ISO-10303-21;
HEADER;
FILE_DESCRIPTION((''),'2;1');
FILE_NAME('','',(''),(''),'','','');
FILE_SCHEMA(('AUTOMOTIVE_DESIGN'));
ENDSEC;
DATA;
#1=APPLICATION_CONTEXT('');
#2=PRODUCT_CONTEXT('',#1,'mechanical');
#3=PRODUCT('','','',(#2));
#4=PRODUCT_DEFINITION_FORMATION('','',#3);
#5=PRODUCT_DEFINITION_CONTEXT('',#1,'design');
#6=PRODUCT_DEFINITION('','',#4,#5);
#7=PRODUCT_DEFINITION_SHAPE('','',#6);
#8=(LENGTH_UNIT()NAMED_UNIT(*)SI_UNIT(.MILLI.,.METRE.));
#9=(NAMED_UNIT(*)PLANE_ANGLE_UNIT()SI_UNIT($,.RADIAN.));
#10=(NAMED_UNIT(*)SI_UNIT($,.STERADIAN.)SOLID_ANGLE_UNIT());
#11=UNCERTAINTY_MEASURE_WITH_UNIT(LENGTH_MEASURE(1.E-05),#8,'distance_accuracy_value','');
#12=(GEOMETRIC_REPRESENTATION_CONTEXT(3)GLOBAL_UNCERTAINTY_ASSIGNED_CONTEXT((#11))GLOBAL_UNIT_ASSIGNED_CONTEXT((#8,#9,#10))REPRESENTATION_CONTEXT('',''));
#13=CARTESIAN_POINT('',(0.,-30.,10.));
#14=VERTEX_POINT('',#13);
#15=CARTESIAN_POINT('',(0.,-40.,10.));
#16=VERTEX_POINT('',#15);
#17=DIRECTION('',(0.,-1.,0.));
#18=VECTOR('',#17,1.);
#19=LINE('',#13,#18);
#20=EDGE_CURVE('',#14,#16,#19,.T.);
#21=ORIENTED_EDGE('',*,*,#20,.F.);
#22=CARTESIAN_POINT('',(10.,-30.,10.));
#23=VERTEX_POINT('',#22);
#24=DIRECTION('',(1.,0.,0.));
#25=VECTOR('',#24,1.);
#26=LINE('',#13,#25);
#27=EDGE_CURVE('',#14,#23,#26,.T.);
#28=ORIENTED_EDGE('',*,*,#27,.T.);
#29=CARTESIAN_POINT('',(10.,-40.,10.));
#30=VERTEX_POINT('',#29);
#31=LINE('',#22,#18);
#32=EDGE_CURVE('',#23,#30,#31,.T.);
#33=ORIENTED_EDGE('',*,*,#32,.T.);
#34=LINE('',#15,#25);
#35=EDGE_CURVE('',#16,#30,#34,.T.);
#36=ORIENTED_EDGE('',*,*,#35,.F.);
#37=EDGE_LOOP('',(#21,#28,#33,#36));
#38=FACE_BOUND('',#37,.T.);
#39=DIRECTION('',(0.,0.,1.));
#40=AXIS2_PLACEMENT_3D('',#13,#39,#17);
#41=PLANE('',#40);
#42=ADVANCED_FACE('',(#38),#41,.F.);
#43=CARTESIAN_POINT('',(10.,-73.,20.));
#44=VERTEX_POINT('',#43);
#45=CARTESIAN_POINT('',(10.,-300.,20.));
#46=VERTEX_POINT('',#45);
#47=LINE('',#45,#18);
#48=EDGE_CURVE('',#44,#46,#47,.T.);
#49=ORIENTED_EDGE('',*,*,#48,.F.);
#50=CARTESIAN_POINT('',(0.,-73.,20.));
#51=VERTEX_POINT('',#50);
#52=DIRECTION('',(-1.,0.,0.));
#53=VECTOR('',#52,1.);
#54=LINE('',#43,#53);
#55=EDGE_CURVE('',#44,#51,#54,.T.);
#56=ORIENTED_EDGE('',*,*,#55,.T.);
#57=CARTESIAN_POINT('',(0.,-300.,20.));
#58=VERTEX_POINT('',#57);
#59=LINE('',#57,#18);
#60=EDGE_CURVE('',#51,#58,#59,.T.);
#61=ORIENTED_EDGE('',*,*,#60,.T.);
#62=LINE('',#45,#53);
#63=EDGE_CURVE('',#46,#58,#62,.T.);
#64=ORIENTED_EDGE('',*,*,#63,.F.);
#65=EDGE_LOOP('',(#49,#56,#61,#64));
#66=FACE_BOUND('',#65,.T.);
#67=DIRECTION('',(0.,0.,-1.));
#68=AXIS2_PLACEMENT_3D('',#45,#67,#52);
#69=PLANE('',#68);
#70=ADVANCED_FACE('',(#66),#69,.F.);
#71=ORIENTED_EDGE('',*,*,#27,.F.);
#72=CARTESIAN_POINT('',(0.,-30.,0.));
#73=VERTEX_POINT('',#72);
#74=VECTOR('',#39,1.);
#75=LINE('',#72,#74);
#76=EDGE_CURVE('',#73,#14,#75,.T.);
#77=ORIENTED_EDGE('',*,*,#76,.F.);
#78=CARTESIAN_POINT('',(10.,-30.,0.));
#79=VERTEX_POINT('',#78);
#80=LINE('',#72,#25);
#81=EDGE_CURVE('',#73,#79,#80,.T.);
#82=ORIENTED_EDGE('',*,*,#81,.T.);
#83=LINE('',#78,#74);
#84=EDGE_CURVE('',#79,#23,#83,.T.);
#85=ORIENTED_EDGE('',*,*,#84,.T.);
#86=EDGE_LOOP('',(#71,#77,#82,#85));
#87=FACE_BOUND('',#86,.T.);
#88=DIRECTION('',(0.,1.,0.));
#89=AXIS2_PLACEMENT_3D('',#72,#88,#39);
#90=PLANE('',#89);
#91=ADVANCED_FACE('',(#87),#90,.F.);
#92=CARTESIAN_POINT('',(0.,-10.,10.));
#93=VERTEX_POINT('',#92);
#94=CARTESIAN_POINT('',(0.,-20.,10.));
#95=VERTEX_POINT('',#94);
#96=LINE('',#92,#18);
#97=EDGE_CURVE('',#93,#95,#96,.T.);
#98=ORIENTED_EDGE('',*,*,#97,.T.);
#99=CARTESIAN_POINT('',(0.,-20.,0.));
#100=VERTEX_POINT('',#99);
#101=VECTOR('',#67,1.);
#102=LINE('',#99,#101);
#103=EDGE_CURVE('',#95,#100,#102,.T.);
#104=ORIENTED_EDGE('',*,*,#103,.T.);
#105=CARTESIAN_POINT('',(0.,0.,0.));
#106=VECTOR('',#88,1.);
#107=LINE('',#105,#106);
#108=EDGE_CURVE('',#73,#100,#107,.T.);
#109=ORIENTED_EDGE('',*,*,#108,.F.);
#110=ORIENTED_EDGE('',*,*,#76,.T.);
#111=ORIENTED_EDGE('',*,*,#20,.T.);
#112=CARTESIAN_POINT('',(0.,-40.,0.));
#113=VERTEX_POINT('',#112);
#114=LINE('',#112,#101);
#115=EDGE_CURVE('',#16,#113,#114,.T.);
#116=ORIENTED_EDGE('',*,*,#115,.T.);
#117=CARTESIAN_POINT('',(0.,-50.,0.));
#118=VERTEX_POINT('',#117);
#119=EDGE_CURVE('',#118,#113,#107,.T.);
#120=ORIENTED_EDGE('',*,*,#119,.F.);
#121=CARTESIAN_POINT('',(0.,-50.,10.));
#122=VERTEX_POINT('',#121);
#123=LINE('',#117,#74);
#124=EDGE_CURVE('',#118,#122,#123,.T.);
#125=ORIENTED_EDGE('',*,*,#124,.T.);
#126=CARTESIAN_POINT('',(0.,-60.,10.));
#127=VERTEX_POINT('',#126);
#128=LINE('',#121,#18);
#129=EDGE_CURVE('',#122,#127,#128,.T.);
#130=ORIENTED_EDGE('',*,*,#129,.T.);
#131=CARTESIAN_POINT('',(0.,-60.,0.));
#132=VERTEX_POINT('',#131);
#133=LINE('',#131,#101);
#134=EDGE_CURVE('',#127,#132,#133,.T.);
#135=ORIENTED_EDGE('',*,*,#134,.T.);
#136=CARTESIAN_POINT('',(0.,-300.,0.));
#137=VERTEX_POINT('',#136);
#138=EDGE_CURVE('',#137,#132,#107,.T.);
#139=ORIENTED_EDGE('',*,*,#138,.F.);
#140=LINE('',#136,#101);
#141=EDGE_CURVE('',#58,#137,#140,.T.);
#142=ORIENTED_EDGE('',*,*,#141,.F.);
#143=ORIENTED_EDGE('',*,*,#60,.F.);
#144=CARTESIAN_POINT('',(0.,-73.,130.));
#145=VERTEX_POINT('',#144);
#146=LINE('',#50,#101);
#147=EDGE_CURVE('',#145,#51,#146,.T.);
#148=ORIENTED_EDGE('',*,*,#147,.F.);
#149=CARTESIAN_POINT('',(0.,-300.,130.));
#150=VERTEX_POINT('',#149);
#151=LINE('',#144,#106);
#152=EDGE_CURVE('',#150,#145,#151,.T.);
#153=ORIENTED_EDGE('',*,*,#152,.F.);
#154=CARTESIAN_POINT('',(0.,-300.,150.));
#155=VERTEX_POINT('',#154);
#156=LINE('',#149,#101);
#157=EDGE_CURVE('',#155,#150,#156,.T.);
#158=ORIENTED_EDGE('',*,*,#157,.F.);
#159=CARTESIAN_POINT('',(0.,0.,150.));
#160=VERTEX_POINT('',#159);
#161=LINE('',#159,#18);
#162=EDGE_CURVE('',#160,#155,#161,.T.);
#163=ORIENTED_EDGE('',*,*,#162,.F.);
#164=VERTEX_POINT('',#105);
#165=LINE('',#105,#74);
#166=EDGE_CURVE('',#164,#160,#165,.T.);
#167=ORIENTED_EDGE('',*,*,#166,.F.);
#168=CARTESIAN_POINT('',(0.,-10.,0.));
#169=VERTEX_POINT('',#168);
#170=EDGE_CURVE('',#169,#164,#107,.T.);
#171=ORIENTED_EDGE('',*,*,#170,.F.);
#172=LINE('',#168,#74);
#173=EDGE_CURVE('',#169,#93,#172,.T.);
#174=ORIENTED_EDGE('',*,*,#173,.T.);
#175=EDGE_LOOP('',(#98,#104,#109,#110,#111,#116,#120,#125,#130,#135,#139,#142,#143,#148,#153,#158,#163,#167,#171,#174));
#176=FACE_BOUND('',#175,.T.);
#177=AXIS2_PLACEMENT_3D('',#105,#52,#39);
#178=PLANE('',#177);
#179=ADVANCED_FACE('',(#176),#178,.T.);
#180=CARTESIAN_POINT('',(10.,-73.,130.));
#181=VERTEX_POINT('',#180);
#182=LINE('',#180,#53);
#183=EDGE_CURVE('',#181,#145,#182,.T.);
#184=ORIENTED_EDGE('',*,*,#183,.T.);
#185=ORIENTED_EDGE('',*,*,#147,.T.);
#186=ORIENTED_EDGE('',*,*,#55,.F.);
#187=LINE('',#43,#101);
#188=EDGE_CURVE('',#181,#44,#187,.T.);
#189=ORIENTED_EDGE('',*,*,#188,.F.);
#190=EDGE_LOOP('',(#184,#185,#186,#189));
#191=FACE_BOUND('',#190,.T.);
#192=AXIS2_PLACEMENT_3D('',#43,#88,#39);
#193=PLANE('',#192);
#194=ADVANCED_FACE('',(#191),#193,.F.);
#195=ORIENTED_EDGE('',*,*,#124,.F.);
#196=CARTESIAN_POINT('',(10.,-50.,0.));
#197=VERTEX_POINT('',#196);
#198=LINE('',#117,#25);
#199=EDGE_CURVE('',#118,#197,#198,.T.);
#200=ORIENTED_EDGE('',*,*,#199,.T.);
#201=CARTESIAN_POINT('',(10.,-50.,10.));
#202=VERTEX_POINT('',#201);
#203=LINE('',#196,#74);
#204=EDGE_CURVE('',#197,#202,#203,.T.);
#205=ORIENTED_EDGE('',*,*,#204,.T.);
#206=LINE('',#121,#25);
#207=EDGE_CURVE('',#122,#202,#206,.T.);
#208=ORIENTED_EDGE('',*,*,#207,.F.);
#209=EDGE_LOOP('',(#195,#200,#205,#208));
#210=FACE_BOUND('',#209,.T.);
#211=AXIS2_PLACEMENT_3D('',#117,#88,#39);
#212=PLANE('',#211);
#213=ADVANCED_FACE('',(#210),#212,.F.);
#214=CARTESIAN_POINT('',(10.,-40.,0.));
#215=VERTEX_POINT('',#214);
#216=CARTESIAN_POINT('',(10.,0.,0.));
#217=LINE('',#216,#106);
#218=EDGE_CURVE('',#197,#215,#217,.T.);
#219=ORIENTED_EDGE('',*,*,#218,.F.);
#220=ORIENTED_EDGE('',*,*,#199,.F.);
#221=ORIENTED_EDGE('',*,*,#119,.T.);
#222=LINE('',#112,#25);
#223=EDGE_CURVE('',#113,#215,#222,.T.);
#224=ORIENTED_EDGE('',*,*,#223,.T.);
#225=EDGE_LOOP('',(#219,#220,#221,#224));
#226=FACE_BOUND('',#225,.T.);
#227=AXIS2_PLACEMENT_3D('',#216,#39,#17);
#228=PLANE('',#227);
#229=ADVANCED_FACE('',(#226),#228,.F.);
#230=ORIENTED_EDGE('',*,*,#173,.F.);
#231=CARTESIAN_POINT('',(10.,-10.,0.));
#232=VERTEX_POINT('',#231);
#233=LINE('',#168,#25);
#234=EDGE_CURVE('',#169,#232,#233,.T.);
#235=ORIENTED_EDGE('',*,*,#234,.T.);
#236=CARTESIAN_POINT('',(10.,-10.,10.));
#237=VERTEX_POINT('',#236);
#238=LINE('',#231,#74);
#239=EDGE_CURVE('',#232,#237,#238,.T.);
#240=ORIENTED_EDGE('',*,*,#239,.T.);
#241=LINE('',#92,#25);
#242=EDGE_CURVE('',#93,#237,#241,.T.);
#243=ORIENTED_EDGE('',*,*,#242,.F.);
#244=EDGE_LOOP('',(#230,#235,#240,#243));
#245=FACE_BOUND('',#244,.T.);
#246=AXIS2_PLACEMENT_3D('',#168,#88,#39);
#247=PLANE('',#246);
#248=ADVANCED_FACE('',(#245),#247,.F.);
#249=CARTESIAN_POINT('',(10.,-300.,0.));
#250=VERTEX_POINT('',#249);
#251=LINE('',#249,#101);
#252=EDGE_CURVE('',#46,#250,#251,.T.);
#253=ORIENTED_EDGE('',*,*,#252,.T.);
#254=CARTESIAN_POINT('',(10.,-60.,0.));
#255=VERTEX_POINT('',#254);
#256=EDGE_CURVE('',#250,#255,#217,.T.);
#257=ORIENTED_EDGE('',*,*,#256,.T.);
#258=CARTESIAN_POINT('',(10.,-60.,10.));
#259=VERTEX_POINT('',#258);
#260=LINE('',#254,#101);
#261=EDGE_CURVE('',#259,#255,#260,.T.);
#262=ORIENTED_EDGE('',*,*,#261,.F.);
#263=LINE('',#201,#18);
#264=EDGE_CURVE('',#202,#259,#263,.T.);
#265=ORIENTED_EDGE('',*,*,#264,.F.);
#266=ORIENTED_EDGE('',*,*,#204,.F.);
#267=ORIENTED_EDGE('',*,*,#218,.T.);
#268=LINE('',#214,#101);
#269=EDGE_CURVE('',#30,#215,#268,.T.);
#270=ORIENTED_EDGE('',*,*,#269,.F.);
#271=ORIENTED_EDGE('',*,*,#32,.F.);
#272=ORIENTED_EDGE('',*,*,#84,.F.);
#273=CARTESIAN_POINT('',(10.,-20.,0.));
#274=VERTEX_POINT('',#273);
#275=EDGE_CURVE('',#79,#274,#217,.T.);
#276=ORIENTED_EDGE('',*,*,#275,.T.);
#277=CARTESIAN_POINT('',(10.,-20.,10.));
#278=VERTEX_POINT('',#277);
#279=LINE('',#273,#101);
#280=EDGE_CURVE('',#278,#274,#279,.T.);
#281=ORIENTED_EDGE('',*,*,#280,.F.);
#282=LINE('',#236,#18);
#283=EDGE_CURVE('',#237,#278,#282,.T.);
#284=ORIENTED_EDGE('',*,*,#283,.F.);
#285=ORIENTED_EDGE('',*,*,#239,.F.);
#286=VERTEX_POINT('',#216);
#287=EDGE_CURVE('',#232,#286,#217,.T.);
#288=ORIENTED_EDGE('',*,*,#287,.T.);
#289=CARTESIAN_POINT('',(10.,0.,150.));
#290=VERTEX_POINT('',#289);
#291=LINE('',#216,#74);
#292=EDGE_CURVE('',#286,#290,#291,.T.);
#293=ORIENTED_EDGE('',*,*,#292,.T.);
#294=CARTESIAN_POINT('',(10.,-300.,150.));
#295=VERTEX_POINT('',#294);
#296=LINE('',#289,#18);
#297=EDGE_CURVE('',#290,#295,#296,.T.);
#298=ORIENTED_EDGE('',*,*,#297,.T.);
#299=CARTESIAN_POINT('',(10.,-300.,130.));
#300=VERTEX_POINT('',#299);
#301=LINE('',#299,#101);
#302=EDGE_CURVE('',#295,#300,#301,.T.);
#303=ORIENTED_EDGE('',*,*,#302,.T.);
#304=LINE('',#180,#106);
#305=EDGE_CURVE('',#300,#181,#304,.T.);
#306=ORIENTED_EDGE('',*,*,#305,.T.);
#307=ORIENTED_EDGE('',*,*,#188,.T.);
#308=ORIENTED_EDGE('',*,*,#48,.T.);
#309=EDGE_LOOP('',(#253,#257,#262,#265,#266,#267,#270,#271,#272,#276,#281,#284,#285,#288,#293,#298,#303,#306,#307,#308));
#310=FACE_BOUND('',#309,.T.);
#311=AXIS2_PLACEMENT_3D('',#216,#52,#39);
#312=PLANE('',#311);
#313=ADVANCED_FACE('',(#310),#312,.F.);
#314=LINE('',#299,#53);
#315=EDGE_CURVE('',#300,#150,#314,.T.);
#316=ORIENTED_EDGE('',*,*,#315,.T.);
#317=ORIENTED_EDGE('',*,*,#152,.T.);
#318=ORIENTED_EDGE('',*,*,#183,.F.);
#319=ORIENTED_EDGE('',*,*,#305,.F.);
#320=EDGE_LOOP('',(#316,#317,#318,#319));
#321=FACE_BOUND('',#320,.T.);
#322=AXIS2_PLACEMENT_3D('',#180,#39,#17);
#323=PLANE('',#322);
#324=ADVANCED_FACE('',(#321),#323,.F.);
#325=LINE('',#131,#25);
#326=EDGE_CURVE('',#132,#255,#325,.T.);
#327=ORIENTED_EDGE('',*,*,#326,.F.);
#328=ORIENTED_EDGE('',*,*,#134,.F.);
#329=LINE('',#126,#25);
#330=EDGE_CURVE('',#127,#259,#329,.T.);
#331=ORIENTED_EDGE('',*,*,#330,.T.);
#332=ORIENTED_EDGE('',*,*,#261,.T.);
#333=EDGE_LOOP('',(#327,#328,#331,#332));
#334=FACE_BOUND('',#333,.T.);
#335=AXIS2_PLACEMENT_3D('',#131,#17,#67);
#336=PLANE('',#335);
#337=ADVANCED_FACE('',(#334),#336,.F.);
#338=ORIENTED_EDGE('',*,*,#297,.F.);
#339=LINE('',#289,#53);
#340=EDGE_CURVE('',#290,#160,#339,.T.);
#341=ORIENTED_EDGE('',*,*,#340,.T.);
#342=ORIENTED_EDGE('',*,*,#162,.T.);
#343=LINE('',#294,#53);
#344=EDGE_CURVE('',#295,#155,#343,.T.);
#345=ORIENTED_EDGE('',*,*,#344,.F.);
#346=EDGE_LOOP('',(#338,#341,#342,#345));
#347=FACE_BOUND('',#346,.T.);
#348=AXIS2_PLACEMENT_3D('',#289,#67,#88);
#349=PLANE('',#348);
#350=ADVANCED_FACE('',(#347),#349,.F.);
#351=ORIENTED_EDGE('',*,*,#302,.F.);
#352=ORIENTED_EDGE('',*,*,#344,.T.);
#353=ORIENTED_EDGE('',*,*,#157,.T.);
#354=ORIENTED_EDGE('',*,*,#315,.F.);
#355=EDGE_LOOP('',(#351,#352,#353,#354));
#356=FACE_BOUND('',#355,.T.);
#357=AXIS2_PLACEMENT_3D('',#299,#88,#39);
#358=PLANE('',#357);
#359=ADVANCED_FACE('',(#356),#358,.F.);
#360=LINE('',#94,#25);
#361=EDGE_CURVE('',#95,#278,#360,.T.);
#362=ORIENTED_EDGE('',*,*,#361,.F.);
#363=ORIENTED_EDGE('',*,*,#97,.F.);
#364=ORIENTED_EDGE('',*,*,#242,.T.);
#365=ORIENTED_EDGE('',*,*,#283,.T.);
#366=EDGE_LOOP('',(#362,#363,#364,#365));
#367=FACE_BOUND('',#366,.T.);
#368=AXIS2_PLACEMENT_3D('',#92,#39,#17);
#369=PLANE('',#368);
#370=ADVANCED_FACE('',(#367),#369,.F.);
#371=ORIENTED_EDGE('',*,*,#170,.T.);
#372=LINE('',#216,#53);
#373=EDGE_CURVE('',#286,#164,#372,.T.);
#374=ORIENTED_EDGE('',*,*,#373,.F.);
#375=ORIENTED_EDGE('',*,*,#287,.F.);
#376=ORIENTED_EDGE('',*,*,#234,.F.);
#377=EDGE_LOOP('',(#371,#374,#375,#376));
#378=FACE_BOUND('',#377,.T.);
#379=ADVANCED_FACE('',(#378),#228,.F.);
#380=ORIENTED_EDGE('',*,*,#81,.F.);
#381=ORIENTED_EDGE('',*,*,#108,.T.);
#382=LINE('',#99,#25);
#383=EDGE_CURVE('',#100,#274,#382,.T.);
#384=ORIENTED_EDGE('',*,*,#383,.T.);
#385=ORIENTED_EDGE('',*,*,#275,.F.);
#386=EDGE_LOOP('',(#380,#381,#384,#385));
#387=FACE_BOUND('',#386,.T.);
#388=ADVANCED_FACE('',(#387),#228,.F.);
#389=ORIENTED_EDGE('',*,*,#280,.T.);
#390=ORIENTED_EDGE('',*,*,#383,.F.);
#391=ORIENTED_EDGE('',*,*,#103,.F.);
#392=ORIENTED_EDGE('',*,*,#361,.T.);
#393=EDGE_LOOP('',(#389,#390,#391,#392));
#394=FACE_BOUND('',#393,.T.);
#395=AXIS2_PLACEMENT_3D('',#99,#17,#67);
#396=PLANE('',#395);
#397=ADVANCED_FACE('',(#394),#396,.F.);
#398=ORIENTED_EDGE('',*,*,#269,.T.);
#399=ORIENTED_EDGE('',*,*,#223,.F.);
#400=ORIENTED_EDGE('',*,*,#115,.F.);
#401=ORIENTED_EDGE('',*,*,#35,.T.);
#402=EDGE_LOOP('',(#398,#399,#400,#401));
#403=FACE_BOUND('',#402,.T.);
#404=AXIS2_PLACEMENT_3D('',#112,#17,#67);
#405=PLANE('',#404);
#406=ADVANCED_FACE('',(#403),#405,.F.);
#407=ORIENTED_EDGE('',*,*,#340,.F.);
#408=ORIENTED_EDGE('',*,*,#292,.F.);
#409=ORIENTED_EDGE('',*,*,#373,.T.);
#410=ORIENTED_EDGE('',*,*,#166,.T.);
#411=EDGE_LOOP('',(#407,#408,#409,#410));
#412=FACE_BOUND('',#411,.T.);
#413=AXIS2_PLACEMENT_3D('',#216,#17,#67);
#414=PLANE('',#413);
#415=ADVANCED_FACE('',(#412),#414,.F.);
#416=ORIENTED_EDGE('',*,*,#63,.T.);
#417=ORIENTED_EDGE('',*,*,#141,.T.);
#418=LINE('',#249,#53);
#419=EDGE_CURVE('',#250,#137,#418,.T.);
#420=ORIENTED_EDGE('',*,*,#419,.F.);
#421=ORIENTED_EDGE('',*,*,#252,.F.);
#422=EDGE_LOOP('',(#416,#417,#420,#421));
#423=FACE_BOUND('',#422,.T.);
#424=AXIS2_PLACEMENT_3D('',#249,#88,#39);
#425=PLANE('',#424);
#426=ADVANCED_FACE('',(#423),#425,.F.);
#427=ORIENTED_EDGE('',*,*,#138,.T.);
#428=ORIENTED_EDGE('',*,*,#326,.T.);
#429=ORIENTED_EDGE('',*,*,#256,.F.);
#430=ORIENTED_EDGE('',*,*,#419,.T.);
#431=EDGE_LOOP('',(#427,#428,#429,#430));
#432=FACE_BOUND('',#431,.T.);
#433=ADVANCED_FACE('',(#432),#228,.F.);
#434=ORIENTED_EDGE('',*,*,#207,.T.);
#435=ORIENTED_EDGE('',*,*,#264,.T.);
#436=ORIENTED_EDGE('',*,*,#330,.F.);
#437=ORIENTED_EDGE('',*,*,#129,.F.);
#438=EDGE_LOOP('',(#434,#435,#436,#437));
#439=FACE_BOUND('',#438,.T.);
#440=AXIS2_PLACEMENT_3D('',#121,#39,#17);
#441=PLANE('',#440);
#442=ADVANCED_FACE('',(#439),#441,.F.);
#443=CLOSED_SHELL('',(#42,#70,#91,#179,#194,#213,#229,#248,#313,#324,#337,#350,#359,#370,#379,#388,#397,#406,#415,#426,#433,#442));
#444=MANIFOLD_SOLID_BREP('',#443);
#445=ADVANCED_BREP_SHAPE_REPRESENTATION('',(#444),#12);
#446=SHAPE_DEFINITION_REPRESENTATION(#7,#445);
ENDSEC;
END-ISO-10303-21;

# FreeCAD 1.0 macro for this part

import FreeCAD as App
import Part
import Sketcher


def add_polygon(sketch, points):
    """Adds a closed chain of lines whose ends are joined by coincident constraints."""
    first, n = sketch.GeometryCount, len(points)
    for a, b in zip(points, points[1:] + points[:1]):
        sketch.addGeometry(Part.LineSegment(App.Vector(*a, 0), App.Vector(*b, 0)), False)
    for i in range(n):
        sketch.addConstraint(Sketcher.Constraint("Coincident", first + i, 2, first + (i + 1) % n, 1))

doc = App.newDocument("Part")
params = doc.addObject("Spreadsheet::Sheet", "Params")
for row, (alias, value) in enumerate([
    ("sketch1_width", "300 mm"),
    ("sketch1_width2", "227 mm"),
    ("sketch1_height", "20 mm"),
    ("sketch1_height2", "150 mm"),
    ("pad1_length", "10 mm"),
    ("sketch2_width", "10 mm"),
    ("pocket1_length", "10 mm"),
    ("linearpattern_pitch", "20 mm"),
], start=1):
    params.set(f"A{row}", alias)
    params.set(f"B{row}", "=" + value)
    params.setAlias(f"B{row}", alias)

body = doc.addObject("PartDesign::Body", "Body")

# Sketch on YZ plane
sketch1 = body.newObject("Sketcher::SketchObject", "Sketch")
sketch1.AttachmentSupport = (doc.getObject("YZ_Plane"), [""])
sketch1.MapMode = "FlatFace"
add_polygon(sketch1, [(-300, 20), (-300, 0), (0, 0), (0, 150), (-300, 150), (-300, 130), (-73, 130), (-73, 20)])  # lines 0-7
sketch1.addConstraint([
    Sketcher.Constraint("Vertical", 0),
    Sketcher.Constraint("Horizontal", 1),
    Sketcher.Constraint("Vertical", 2),
    Sketcher.Constraint("Horizontal", 3),
    Sketcher.Constraint("Vertical", 4),
    Sketcher.Constraint("Horizontal", 5),
    Sketcher.Constraint("Vertical", 6),
    Sketcher.Constraint("Horizontal", 7),
    Sketcher.Constraint("Coincident", 1, 2, -1, 1),
    Sketcher.Constraint("Vertical", 0, 2, 3, 2),
    Sketcher.Constraint("Equal", 0, 4),
    Sketcher.Constraint("DistanceX", 1, 1, 1, 2, 300.0),
    Sketcher.Constraint("DistanceX", 5, 1, 5, 2, 227.0),
    Sketcher.Constraint("DistanceY", 0, 2, 0, 1, 20.0),
    Sketcher.Constraint("DistanceY", 2, 1, 2, 2, 150.0),
])
sketch1.setExpression("Constraints[19]", "Params.sketch1_width")
sketch1.setExpression("Constraints[20]", "Params.sketch1_width2")
sketch1.setExpression("Constraints[21]", "Params.sketch1_height")
sketch1.setExpression("Constraints[22]", "Params.sketch1_height2")
pad1 = body.newObject("PartDesign::Pad", "Pad")
pad1.Profile = sketch1
pad1.setExpression("Length", "Params.pad1_length")

# Sketch on YZ plane
sketch2 = body.newObject("Sketcher::SketchObject", "Sketch001")
sketch2.AttachmentSupport = (doc.getObject("YZ_Plane"), [""])
sketch2.MapMode = "FlatFace"
sketch2.AttachmentOffset = App.Placement(App.Vector(0, 0, 10), App.Rotation())
add_polygon(sketch2, [(-10, 10), (-20, 10), (-20, 0), (-10, 0)])  # lines 0-3
sketch2.addConstraint([
    Sketcher.Constraint("Horizontal", 0),
    Sketcher.Constraint("Vertical", 1),
    Sketcher.Constraint("Horizontal", 2),
    Sketcher.Constraint("Vertical", 3),
    Sketcher.Constraint("PointOnObject", 1, 2, -1),
    Sketcher.Constraint("Equal", 2, 1),
    Sketcher.Constraint("DistanceX", 0, 2, 0, 1, 10.0),
    Sketcher.Constraint("DistanceX", 0, 2, -1, 1, 20.0),
])
sketch2.setExpression("Constraints[10]", "Params.sketch2_width")
pocket1 = body.newObject("PartDesign::Pocket", "Pocket")
pocket1.Profile = sketch2
pocket1.setExpression("Length", "Params.pocket1_length")
doc.recompute()

linearpattern = body.newObject("PartDesign::LinearPattern", "LinearPattern")
linearpattern.Originals = [pocket1]
linearpattern.Direction = (doc.getObject("Y_Axis"), [""])
linearpattern.Mode = "offset"
linearpattern.setExpression("Offset", "Params.linearpattern_pitch")
linearpattern.Occurrences = 3
linearpattern.Reversed = True
body.Tip = linearpattern

doc.recompute()
